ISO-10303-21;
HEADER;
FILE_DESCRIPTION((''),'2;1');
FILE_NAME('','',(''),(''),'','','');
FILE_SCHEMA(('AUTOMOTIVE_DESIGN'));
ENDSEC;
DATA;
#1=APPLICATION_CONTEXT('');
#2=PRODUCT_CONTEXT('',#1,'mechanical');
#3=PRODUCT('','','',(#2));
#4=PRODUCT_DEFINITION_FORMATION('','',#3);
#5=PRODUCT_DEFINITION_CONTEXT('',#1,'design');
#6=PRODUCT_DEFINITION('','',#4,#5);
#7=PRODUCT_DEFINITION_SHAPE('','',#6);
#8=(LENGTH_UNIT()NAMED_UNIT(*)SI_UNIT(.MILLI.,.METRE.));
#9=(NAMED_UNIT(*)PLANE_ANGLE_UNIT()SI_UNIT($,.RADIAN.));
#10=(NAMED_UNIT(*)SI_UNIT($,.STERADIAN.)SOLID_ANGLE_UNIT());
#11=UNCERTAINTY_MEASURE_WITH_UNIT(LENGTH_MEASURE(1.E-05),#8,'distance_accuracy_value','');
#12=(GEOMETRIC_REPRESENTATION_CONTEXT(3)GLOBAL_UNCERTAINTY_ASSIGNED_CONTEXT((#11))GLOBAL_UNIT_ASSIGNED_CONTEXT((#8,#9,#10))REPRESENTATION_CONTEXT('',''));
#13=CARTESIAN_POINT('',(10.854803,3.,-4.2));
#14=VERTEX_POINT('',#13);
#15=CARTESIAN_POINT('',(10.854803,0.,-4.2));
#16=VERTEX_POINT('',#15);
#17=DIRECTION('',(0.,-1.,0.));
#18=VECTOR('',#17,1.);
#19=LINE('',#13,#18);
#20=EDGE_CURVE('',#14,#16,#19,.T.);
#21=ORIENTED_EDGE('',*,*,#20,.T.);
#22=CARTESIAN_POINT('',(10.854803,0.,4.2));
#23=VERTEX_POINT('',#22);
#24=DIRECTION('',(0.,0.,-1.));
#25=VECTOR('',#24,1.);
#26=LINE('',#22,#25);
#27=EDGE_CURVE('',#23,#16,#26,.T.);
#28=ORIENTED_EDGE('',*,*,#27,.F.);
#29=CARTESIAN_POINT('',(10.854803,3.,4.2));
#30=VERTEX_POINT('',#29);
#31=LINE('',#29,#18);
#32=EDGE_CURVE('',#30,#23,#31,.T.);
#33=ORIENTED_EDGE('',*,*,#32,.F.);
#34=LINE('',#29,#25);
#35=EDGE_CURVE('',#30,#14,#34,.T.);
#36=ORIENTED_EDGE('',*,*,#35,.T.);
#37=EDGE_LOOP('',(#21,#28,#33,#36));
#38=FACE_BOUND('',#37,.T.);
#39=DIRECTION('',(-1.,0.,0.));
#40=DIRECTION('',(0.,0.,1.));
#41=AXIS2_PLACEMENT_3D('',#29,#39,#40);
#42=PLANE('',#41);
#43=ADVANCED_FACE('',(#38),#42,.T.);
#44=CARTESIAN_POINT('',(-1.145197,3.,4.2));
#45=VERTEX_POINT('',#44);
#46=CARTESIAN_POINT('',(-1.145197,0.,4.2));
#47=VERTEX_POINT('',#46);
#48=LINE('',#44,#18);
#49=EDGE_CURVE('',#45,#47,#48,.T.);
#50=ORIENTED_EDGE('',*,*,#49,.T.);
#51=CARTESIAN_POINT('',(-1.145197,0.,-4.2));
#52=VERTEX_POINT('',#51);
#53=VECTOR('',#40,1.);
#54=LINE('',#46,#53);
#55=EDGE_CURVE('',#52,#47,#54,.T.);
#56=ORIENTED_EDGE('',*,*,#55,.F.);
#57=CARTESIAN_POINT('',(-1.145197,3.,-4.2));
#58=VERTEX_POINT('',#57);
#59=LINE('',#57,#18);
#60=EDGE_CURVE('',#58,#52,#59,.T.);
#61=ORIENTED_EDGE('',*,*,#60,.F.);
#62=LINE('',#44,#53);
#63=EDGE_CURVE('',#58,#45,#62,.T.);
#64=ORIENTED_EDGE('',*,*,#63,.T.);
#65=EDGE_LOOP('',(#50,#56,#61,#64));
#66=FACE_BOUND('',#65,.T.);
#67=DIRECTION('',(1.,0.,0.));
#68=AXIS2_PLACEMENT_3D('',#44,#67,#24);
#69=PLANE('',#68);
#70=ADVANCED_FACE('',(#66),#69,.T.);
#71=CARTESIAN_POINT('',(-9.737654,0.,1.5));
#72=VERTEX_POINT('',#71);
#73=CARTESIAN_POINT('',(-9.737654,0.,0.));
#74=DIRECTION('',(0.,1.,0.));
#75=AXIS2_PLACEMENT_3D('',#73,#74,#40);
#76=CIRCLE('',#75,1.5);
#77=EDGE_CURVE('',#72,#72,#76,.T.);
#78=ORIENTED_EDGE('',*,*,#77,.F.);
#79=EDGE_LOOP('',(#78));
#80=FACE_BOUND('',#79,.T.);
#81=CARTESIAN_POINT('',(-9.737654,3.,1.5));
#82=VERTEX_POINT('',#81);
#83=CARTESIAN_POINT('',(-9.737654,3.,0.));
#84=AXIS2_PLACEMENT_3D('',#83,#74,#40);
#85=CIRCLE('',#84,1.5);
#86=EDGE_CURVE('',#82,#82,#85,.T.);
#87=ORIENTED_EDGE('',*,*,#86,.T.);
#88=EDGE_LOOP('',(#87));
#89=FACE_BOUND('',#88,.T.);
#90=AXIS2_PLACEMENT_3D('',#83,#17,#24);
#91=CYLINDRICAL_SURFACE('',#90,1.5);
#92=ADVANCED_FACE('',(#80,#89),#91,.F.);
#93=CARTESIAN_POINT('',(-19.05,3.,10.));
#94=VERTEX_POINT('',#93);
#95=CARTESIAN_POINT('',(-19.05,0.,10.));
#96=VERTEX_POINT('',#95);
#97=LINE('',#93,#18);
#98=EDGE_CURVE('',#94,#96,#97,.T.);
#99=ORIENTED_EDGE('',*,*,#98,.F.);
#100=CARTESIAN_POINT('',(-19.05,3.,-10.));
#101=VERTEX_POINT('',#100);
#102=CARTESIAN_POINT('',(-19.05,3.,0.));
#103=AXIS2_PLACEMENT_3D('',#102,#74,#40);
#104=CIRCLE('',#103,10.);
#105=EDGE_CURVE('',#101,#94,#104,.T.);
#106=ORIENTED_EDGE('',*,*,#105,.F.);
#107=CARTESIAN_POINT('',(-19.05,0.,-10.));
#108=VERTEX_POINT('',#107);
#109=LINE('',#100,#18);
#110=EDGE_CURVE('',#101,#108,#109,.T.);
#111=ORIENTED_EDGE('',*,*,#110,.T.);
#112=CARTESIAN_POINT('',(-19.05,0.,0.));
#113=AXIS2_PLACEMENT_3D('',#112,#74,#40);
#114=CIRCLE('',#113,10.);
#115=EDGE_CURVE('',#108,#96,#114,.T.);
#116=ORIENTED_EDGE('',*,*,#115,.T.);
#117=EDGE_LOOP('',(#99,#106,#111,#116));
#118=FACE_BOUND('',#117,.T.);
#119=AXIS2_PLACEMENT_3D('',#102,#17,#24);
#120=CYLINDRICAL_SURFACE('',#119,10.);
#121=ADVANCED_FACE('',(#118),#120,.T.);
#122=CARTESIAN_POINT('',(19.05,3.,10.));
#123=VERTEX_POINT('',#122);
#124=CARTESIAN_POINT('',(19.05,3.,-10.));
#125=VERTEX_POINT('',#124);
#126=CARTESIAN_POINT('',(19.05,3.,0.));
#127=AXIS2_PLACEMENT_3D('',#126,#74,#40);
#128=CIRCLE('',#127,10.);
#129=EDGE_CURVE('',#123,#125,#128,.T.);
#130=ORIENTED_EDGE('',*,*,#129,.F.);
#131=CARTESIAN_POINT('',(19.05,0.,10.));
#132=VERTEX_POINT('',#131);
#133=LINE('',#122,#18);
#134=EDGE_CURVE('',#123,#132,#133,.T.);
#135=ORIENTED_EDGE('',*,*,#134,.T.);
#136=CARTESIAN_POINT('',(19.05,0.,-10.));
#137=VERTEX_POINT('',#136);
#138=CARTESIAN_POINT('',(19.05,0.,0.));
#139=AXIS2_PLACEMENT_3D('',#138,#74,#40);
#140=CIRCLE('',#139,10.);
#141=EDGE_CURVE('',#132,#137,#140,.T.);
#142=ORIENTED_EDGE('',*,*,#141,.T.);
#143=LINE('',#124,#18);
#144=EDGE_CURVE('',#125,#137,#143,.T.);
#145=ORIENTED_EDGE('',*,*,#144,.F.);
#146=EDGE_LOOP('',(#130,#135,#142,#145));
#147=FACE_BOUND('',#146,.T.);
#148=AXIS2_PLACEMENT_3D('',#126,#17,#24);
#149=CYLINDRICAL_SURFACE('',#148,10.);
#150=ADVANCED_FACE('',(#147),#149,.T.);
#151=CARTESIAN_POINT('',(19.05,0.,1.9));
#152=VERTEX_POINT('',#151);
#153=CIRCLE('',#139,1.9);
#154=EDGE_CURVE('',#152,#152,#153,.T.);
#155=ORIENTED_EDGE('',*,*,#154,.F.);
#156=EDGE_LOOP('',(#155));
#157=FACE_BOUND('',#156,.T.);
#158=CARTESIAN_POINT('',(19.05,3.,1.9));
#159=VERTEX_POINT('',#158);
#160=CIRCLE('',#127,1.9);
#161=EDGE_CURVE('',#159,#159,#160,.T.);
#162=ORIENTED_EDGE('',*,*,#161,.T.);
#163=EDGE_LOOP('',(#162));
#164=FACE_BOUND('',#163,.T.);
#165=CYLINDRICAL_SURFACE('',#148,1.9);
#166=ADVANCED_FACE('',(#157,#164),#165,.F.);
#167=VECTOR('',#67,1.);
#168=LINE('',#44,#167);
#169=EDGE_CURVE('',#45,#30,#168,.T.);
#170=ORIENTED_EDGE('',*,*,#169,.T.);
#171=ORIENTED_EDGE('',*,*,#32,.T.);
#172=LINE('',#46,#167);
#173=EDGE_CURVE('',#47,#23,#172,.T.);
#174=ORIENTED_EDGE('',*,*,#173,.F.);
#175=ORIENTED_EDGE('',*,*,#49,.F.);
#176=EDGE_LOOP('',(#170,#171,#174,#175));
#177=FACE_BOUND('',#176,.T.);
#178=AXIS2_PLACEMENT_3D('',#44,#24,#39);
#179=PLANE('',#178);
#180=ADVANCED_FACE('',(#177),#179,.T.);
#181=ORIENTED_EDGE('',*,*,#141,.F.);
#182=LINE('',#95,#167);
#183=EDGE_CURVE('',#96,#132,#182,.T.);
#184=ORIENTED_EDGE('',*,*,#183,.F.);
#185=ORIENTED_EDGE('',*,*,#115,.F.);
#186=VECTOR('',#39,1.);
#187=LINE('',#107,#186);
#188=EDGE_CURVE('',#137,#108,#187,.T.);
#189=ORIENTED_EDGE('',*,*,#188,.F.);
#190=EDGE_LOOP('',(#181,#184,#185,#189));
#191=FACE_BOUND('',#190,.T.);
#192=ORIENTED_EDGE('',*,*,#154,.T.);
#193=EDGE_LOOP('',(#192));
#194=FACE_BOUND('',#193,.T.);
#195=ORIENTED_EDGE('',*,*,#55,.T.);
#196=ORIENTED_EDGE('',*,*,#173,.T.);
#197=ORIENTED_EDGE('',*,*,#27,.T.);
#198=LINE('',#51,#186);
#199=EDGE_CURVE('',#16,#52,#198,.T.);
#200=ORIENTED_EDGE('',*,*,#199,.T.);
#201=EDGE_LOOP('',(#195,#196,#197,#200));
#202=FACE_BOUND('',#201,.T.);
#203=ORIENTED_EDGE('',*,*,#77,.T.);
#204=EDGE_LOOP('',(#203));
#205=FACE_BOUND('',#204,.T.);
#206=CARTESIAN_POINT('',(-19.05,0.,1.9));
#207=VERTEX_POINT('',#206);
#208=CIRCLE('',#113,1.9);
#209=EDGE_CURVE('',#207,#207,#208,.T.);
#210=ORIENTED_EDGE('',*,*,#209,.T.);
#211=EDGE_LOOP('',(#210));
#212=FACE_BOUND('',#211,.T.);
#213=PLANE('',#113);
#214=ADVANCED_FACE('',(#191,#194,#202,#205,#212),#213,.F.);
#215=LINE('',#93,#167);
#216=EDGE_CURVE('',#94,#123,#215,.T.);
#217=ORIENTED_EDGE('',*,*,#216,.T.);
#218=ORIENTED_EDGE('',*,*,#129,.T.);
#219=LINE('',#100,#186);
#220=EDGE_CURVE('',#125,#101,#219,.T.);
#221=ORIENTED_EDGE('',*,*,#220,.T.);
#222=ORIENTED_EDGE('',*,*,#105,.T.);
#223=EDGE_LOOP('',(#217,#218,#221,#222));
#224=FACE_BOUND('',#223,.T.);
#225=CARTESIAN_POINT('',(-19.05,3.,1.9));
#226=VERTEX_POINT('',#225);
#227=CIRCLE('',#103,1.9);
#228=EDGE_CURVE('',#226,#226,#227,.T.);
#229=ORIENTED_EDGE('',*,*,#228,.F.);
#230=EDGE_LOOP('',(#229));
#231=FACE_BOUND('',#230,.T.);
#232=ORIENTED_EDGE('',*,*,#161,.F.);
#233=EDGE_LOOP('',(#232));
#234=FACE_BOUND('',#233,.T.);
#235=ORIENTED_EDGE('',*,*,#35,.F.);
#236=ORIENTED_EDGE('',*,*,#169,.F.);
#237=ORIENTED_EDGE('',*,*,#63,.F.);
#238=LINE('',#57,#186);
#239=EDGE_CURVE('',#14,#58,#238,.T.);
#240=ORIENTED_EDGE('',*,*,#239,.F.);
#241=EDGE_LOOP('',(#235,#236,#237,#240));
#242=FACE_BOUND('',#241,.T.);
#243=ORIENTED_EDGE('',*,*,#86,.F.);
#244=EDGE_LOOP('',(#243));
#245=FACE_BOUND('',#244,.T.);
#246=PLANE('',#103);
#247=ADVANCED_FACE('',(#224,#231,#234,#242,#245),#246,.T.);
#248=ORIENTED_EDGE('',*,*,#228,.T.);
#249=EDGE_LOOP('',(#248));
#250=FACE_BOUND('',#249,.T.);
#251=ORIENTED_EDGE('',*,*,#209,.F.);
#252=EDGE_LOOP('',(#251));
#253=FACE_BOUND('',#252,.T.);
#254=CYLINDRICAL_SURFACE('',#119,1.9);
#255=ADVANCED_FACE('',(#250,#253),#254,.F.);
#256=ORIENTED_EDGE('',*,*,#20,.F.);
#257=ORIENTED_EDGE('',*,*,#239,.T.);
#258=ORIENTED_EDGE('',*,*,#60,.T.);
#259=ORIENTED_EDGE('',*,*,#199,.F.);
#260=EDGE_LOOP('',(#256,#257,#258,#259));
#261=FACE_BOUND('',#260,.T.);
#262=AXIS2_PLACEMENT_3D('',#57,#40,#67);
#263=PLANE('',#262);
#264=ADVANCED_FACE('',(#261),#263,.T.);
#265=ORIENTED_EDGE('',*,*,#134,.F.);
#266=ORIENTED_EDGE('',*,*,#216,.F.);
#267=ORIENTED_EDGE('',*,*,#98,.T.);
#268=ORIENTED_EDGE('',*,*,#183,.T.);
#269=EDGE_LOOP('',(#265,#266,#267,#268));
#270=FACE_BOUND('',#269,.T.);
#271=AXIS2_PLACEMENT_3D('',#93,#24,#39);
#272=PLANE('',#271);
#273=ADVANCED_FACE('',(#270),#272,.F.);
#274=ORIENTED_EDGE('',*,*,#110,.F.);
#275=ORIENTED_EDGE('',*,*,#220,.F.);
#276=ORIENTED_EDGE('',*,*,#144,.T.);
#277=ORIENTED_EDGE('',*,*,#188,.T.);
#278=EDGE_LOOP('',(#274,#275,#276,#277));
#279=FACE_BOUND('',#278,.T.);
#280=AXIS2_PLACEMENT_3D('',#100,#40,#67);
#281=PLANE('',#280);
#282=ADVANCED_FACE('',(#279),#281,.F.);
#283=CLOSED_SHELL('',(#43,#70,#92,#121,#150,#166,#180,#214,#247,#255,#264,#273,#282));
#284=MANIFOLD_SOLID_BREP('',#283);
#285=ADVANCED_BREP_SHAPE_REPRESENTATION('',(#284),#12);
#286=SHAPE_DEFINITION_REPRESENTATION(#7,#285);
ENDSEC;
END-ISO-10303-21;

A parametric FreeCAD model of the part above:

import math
import FreeCAD as App
import Part
import Sketcher
Q = App.Units.Quantity


def add_polygon(sketch, points):
    """Adds a closed chain of lines whose ends are joined by coincident constraints."""
    first, n = sketch.GeometryCount, len(points)
    for a, b in zip(points, points[1:] + points[:1]):
        sketch.addGeometry(Part.LineSegment(App.Vector(*a, 0), App.Vector(*b, 0)), False)
    for i in range(n):
        sketch.addConstraint(Sketcher.Constraint("Coincident", first + i, 2, first + (i + 1) % n, 1))

doc = App.newDocument("Part")
body = doc.addObject("PartDesign::Body", "Body")

# Sketch on XZ plane
sketch1 = doc.addObject("Sketcher::SketchObject", "Sketch")
body.addObject(sketch1)
sketch1.AttachmentSupport = (doc.XZ_Plane, [""])
sketch1.MapMode = "FlatFace"
sketch1.addGeometry(Part.LineSegment(App.Vector(19.1, -10, 0), App.Vector(-19.1, -10, 0)), False)  # 0
sketch1.addGeometry(Part.ArcOfCircle(Part.Circle(App.Vector(-19.1, 0, 0), App.Vector(0, 0, 1), 10), math.radians(90), math.radians(270)), False)  # 1
sketch1.addGeometry(Part.LineSegment(App.Vector(-19.1, 10, 0), App.Vector(19.1, 10, 0)), False)  # 2
sketch1.addGeometry(Part.ArcOfCircle(Part.Circle(App.Vector(19.1, 0, 0), App.Vector(0, 0, 1), 10), math.radians(-90), math.radians(90)), False)  # 3
sketch1.addGeometry(Part.Circle(App.Vector(19.1, 0, 0), App.Vector(0, 0, 1), 1.9), False)  # 4
add_polygon(sketch1, [(-1.1, 4.2), (-1.1, -4.2), (10.9, -4.2), (10.9, 4.2)])  # lines 5-8
sketch1.addGeometry(Part.Circle(App.Vector(-9.7, 0, 0), App.Vector(0, 0, 1), 1.5), False)  # 9
sketch1.addGeometry(Part.Circle(App.Vector(-19.1, 0, 0), App.Vector(0, 0, 1), 1.9), False)  # 10
sketch1.addConstraint([
    Sketcher.Constraint("Tangent", 0, 2, 1, 2),
    Sketcher.Constraint("Tangent", 1, 1, 2, 1),
    Sketcher.Constraint("Tangent", 2, 2, 3, 2),
    Sketcher.Constraint("Tangent", 3, 1, 0, 1),
    Sketcher.Constraint("Horizontal", 0),
    Sketcher.Constraint("Horizontal", 2),
    Sketcher.Constraint("Vertical", 5),
    Sketcher.Constraint("Horizontal", 6),
    Sketcher.Constraint("Vertical", 7),
    Sketcher.Constraint("Horizontal", 8),
    Sketcher.Constraint("Coincident", 4, 3, 3, 3),
    Sketcher.Constraint("Coincident", 10, 3, 1, 3),
    Sketcher.Constraint("Equal", 4, 10),
    Sketcher.Constraint("Symmetric", 1, 3, 3, 3, -1, 1),
    Sketcher.Constraint("PointOnObject", 9, 3, -1),
    Sketcher.Constraint("Diameter", 9, Q("3 mm")),
    Sketcher.Constraint("Radius", 1, Q("10 mm")),
    Sketcher.Constraint("Diameter", 4, Q("3.8 mm")),
    Sketcher.Constraint("DistanceX", 6, 1, 6, 2, Q("12 mm")),
    Sketcher.Constraint("DistanceX", 0, 2, 0, 1, Q("38.1 mm")),
    Sketcher.Constraint("DistanceY", 5, 2, 5, 1, Q("8.4 mm")),
    Sketcher.Constraint("DistanceY", 5, 2, -1, 1, Q("4.2 mm")),
    Sketcher.Constraint("DistanceX", 9, 3, -1, 1, Q("9.737654 mm")),
    Sketcher.Constraint("DistanceX", 5, 2, -1, 1, Q("1.145197 mm")),
])
pad1 = doc.addObject("PartDesign::Pad", "Pad")
body.addObject(pad1)
pad1.Profile = sketch1
pad1.Length = 3
pad1.Reversed = True

doc.recompute()
